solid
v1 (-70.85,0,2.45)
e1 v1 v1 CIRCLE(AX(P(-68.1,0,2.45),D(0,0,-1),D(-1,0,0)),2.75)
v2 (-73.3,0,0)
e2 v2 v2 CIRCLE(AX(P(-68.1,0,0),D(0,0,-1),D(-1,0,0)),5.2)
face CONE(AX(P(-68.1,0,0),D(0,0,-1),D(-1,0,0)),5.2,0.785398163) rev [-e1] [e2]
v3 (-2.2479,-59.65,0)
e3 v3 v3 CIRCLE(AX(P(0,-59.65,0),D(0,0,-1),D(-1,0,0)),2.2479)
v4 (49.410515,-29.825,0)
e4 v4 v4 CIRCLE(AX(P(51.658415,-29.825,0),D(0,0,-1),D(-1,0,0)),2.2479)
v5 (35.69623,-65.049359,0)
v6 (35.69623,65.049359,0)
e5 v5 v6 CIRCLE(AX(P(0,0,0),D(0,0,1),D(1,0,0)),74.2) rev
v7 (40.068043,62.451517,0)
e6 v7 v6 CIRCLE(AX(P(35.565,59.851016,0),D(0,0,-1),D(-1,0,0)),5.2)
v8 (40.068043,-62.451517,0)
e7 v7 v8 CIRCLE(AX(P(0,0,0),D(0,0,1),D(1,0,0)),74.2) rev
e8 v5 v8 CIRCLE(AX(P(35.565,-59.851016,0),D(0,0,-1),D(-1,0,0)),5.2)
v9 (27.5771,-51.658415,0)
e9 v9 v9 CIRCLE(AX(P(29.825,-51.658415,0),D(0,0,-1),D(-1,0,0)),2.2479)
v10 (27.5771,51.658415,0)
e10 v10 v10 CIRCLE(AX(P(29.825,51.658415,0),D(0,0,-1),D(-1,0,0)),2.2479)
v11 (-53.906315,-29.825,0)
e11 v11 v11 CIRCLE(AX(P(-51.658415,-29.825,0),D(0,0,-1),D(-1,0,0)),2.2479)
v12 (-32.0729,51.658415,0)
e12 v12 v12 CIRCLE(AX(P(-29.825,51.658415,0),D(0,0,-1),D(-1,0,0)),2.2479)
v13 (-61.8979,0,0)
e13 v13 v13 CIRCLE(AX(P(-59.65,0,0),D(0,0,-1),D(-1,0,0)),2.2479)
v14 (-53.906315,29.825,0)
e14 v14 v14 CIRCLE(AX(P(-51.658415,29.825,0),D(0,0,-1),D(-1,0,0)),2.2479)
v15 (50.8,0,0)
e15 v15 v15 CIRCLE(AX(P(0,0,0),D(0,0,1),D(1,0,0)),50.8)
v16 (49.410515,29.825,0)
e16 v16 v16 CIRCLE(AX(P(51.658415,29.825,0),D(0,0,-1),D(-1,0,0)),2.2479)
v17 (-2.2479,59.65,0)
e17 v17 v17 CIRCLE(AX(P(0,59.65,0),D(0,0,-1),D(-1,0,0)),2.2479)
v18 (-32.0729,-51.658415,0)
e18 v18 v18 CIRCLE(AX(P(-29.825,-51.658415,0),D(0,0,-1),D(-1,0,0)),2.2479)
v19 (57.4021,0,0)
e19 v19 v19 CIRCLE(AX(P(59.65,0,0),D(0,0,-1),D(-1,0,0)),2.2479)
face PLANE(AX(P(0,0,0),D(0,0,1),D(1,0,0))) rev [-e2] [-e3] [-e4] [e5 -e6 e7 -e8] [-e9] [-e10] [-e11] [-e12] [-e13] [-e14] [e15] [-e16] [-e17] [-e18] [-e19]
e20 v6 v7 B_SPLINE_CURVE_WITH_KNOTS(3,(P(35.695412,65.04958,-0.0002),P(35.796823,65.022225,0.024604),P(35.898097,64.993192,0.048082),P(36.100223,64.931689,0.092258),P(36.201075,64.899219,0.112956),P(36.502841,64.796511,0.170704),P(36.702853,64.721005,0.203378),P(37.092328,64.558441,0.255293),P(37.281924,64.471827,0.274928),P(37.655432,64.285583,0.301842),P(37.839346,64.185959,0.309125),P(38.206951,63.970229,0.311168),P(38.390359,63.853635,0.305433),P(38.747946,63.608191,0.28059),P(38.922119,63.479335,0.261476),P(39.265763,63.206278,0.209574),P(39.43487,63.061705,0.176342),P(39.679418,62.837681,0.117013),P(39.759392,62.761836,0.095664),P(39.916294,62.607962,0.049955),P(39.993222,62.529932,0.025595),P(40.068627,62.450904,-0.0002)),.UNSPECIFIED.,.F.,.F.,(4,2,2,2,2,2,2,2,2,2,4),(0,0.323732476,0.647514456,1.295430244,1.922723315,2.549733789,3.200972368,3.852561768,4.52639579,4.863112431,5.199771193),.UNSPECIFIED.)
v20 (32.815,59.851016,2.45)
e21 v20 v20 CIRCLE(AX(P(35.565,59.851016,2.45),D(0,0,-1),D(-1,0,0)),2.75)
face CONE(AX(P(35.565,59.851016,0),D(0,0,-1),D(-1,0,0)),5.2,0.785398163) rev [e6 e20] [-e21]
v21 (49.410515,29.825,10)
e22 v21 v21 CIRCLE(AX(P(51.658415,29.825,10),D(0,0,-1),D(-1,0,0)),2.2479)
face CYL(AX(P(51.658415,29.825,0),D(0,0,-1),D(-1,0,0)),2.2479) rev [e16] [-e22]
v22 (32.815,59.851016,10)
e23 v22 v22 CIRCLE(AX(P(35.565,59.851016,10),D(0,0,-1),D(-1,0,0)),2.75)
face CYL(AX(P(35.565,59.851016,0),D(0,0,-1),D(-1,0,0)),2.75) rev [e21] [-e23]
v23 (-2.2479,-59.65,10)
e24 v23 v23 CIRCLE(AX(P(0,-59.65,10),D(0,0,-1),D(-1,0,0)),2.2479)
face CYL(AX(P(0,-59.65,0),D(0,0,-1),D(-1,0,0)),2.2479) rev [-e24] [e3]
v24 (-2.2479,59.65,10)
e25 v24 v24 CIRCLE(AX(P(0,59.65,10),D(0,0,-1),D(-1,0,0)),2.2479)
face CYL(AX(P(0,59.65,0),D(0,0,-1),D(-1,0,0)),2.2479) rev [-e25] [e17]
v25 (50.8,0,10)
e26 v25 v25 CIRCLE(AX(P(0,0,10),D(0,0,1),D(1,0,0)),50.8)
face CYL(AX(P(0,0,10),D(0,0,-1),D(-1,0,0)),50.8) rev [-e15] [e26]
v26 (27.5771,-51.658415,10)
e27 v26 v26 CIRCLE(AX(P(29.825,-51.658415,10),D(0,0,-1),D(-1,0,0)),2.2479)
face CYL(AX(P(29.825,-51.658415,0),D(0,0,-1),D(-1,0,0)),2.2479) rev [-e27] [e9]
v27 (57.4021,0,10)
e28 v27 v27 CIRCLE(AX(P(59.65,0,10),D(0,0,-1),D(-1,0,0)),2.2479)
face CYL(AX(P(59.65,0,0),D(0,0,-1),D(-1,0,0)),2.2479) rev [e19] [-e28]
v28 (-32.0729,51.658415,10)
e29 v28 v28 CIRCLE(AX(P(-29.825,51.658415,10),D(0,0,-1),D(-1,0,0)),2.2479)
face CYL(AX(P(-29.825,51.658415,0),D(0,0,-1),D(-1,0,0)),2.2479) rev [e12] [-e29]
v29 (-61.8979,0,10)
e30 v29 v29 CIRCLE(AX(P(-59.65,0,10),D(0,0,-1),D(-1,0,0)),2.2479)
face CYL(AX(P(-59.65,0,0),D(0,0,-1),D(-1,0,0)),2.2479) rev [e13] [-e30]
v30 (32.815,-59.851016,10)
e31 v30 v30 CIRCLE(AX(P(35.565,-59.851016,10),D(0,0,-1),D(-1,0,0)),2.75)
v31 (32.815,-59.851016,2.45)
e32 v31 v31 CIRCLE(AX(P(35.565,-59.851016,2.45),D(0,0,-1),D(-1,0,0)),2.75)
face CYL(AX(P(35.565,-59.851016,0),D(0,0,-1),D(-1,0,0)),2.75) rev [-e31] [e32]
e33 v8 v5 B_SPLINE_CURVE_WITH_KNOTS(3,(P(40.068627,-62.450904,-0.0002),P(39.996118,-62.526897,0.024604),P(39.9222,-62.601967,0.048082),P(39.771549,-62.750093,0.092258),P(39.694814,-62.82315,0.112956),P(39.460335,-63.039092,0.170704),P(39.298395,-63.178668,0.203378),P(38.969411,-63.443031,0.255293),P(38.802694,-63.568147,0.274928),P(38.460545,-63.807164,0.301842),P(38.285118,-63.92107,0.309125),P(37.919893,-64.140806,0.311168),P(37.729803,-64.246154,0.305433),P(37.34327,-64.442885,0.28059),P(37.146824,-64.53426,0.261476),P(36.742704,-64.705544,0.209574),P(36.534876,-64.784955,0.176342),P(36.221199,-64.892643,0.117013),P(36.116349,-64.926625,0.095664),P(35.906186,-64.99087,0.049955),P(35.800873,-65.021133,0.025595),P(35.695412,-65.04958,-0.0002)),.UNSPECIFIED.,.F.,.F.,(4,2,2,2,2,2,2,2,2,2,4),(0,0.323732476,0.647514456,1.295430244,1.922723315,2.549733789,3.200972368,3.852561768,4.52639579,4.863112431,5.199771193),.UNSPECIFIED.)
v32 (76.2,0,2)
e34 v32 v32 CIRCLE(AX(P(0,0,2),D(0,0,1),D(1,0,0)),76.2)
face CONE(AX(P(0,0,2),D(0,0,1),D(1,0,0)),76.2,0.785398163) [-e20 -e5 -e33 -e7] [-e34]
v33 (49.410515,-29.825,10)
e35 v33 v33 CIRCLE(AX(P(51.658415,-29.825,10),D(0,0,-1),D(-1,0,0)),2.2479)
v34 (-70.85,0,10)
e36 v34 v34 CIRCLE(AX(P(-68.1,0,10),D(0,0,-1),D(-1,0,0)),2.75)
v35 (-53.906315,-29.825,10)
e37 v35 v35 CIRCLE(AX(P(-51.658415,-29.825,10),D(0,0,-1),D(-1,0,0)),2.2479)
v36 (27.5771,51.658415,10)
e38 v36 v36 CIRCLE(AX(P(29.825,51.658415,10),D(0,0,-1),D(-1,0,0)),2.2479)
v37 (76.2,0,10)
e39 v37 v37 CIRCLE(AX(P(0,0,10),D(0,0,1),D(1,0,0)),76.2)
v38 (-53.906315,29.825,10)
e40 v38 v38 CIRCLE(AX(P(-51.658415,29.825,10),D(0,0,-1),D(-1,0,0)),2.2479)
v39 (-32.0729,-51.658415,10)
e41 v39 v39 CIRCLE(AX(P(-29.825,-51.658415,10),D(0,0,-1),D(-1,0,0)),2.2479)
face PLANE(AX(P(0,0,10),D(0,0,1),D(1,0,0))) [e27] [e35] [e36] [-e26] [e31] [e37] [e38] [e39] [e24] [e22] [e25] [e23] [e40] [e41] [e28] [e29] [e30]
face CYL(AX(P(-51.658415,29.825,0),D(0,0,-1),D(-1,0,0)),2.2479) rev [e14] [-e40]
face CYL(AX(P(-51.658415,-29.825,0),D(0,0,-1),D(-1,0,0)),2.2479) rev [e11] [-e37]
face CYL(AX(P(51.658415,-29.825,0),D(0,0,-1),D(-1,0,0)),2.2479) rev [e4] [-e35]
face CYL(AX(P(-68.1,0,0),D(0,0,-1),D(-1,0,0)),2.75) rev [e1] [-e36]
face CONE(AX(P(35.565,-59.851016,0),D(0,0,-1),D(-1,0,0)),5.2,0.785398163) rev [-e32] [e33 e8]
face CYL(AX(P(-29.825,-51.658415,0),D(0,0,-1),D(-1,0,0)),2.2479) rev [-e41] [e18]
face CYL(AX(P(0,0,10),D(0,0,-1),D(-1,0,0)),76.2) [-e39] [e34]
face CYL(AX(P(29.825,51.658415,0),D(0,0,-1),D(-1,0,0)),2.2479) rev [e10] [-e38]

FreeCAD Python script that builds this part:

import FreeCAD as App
import Part
import Sketcher
Q = App.Units.Quantity


def edges_at(feature, points):
    """Names of the edges that pass closest to the given points."""
    edges = feature.Shape.Edges
    near = lambda p: min(range(len(edges)), key=lambda i: edges[i].distToShape(Part.Vertex(*p))[0])
    return sorted({f"Edge{near(p) + 1}" for p in points})

doc = App.newDocument("Part")
body = doc.addObject("PartDesign::Body", "Body")

sketch1 = body.newObject("Sketcher::SketchObject", "Sketch")
sketch1.AttachmentSupport = (doc.getObject("XY_Plane"), [""])
sketch1.MapMode = "FlatFace"
sketch1.addGeometry(Part.Circle(App.Vector(0, 0, 0), App.Vector(0, 0, 1), 76), False)
sketch1.addGeometry(Part.Circle(App.Vector(0, 0, 0), App.Vector(0, 0, 1), 51), False)
sketch1.addConstraint(Sketcher.Constraint("Coincident", 0, 3, -1, 1))
sketch1.addConstraint(Sketcher.Constraint("Coincident", 1, 3, -1, 1))
sketch1.addConstraint(Sketcher.Constraint("Diameter", 0, Q("152.4 mm")))
sketch1.addConstraint(Sketcher.Constraint("Diameter", 1, Q("101.6 mm")))
pad1 = body.newObject("PartDesign::Pad", "Pad")
pad1.Profile = sketch1
pad1.Length = 10
doc.recompute()

chamfer = body.newObject("PartDesign::Chamfer", "Chamfer")
chamfer.Base = (pad1, edges_at(pad1, [(-76.2, 0, 0)]))
chamfer.Size = 2

sketch2 = body.newObject("Sketcher::SketchObject", "Sketch001")
sketch2.AttachmentSupport = (doc.getObject("XY_Plane"), [""])
sketch2.MapMode = "FlatFace"
sketch2.addGeometry(Part.Circle(App.Vector(0, 59.6, 0), App.Vector(0, 0, 1), 2.2), False)
sketch2.addGeometry(Part.Circle(App.Vector(-51.7, 29.8, 0), App.Vector(0, 0, 1), 2.2), False)
sketch2.addGeometry(Part.Circle(App.Vector(-29.8, 51.7, 0), App.Vector(0, 0, 1), 2.2), False)
sketch2.addGeometry(Part.Circle(App.Vector(-59.6, 0, 0), App.Vector(0, 0, 1), 2.2), False)
sketch2.addGeometry(Part.Circle(App.Vector(-51.7, -29.8, 0), App.Vector(0, 0, 1), 2.2), False)
sketch2.addGeometry(Part.Circle(App.Vector(-29.8, -51.7, 0), App.Vector(0, 0, 1), 2.2), False)
sketch2.addGeometry(Part.Circle(App.Vector(0, -59.6, 0), App.Vector(0, 0, 1), 2.2), False)
sketch2.addGeometry(Part.Circle(App.Vector(29.8, -51.7, 0), App.Vector(0, 0, 1), 2.2), False)
sketch2.addGeometry(Part.Circle(App.Vector(51.7, -29.8, 0), App.Vector(0, 0, 1), 2.2), False)
sketch2.addGeometry(Part.Circle(App.Vector(59.6, 0, 0), App.Vector(0, 0, 1), 2.2), False)
sketch2.addGeometry(Part.Circle(App.Vector(51.7, 29.8, 0), App.Vector(0, 0, 1), 2.2), False)
sketch2.addGeometry(Part.Circle(App.Vector(29.8, 51.7, 0), App.Vector(0, 0, 1), 2.2), False)
sketch2.addConstraint(Sketcher.Constraint("Equal", 0, 1))
sketch2.addConstraint(Sketcher.Constraint("Equal", 1, 2))
sketch2.addConstraint(Sketcher.Constraint("Equal", 2, 3))
sketch2.addConstraint(Sketcher.Constraint("Equal", 3, 4))
sketch2.addConstraint(Sketcher.Constraint("Equal", 4, 5))
sketch2.addConstraint(Sketcher.Constraint("Equal", 5, 6))
sketch2.addConstraint(Sketcher.Constraint("Equal", 6, 7))
sketch2.addConstraint(Sketcher.Constraint("Equal", 7, 8))
sketch2.addConstraint(Sketcher.Constraint("Equal", 8, 9))
sketch2.addConstraint(Sketcher.Constraint("Equal", 9, 10))
sketch2.addConstraint(Sketcher.Constraint("Equal", 10, 11))
sketch2.addConstraint(Sketcher.Constraint("Symmetric", 0, 3, 6, 3, -1, 1))
sketch2.addConstraint(Sketcher.Constraint("Symmetric", 2, 3, 7, 3, -1, 1))
sketch2.addConstraint(Sketcher.Constraint("Symmetric", 1, 3, 8, 3, -1, 1))
sketch2.addConstraint(Sketcher.Constraint("Symmetric", 3, 3, 9, 3, -1, 1))
sketch2.addConstraint(Sketcher.Constraint("Symmetric", 4, 3, 10, 3, -1, 1))
sketch2.addConstraint(Sketcher.Constraint("Symmetric", 5, 3, 11, 3, -1, 1))
sketch2.addConstraint(Sketcher.Constraint("Symmetric", 5, 3, 7, 3, -2))
sketch2.addConstraint(Sketcher.Constraint("Symmetric", 4, 3, 8, 3, -2))
sketch2.addConstraint(Sketcher.Constraint("PointOnObject", 0, 3, -2))
sketch2.addConstraint(Sketcher.Constraint("PointOnObject", 3, 3, -1))
sketch2.addConstraint(Sketcher.Constraint("Diameter", 0, Q("4.4958 mm")))
sketch2.addConstraint(Sketcher.Constraint("DistanceY", -1, 1, 0, 3, Q("59.65 mm")))
sketch2.addConstraint(Sketcher.Constraint("DistanceX", 3, 3, -1, 1, Q("59.65 mm")))
sketch2.addConstraint(Sketcher.Constraint("DistanceY", 4, 3, 1, 3, Q("59.65 mm")))
sketch2.addConstraint(Sketcher.Constraint("DistanceX", 5, 3, 7, 3, Q("59.65 mm")))
sketch2.addConstraint(Sketcher.Constraint("DistanceY", 5, 3, 2, 3, Q("103.316831 mm")))
sketch2.addConstraint(Sketcher.Constraint("DistanceX", 4, 3, 8, 3, Q("103.316831 mm")))
doc.recompute()
hole = body.newObject("PartDesign::Hole", "Hole")
hole.Profile = sketch2
hole.ThreadType = "None"
hole.Diameter = 4.4958
hole.DepthType = "ThroughAll"
hole.Reversed = True

sketch3 = body.newObject("Sketcher::SketchObject", "Sketch002")
sketch3.AttachmentSupport = (doc.getObject("XY_Plane"), [""])
sketch3.MapMode = "FlatFace"
sketch3.addGeometry(Part.Circle(App.Vector(-68.1, 0, 0), App.Vector(0, 0, 1), 2.8), False)
sketch3.addGeometry(Part.Circle(App.Vector(35.6, -59.9, 0), App.Vector(0, 0, 1), 2.8), False)
sketch3.addGeometry(Part.Circle(App.Vector(35.6, 59.9, 0), App.Vector(0, 0, 1), 2.8), False)
sketch3.addConstraint(Sketcher.Constraint("Equal", 0, 1))
sketch3.addConstraint(Sketcher.Constraint("Equal", 1, 2))
sketch3.addConstraint(Sketcher.Constraint("Symmetric", 1, 3, 2, 3, -1))
sketch3.addConstraint(Sketcher.Constraint("PointOnObject", 0, 3, -1))
sketch3.addConstraint(Sketcher.Constraint("Diameter", 0, Q("5.5 mm")))
sketch3.addConstraint(Sketcher.Constraint("DistanceX", 0, 3, -1, 1, Q("68.1 mm")))
sketch3.addConstraint(Sketcher.Constraint("DistanceX", -1, 1, 1, 3, Q("35.565 mm")))
sketch3.addConstraint(Sketcher.Constraint("DistanceY", 1, 3, 2, 3, Q("119.702031 mm")))
doc.recompute()
hole2 = body.newObject("PartDesign::Hole", "Hole001")
hole2.Profile = sketch3
hole2.ThreadType = "None"
hole2.Diameter = 5.5
hole2.DepthType = "ThroughAll"
hole2.HoleCutType = "Countersink"
hole2.HoleCutDiameter = 10.4
hole2.HoleCutCountersinkAngle = 90
hole2.Reversed = True

doc.recompute()
